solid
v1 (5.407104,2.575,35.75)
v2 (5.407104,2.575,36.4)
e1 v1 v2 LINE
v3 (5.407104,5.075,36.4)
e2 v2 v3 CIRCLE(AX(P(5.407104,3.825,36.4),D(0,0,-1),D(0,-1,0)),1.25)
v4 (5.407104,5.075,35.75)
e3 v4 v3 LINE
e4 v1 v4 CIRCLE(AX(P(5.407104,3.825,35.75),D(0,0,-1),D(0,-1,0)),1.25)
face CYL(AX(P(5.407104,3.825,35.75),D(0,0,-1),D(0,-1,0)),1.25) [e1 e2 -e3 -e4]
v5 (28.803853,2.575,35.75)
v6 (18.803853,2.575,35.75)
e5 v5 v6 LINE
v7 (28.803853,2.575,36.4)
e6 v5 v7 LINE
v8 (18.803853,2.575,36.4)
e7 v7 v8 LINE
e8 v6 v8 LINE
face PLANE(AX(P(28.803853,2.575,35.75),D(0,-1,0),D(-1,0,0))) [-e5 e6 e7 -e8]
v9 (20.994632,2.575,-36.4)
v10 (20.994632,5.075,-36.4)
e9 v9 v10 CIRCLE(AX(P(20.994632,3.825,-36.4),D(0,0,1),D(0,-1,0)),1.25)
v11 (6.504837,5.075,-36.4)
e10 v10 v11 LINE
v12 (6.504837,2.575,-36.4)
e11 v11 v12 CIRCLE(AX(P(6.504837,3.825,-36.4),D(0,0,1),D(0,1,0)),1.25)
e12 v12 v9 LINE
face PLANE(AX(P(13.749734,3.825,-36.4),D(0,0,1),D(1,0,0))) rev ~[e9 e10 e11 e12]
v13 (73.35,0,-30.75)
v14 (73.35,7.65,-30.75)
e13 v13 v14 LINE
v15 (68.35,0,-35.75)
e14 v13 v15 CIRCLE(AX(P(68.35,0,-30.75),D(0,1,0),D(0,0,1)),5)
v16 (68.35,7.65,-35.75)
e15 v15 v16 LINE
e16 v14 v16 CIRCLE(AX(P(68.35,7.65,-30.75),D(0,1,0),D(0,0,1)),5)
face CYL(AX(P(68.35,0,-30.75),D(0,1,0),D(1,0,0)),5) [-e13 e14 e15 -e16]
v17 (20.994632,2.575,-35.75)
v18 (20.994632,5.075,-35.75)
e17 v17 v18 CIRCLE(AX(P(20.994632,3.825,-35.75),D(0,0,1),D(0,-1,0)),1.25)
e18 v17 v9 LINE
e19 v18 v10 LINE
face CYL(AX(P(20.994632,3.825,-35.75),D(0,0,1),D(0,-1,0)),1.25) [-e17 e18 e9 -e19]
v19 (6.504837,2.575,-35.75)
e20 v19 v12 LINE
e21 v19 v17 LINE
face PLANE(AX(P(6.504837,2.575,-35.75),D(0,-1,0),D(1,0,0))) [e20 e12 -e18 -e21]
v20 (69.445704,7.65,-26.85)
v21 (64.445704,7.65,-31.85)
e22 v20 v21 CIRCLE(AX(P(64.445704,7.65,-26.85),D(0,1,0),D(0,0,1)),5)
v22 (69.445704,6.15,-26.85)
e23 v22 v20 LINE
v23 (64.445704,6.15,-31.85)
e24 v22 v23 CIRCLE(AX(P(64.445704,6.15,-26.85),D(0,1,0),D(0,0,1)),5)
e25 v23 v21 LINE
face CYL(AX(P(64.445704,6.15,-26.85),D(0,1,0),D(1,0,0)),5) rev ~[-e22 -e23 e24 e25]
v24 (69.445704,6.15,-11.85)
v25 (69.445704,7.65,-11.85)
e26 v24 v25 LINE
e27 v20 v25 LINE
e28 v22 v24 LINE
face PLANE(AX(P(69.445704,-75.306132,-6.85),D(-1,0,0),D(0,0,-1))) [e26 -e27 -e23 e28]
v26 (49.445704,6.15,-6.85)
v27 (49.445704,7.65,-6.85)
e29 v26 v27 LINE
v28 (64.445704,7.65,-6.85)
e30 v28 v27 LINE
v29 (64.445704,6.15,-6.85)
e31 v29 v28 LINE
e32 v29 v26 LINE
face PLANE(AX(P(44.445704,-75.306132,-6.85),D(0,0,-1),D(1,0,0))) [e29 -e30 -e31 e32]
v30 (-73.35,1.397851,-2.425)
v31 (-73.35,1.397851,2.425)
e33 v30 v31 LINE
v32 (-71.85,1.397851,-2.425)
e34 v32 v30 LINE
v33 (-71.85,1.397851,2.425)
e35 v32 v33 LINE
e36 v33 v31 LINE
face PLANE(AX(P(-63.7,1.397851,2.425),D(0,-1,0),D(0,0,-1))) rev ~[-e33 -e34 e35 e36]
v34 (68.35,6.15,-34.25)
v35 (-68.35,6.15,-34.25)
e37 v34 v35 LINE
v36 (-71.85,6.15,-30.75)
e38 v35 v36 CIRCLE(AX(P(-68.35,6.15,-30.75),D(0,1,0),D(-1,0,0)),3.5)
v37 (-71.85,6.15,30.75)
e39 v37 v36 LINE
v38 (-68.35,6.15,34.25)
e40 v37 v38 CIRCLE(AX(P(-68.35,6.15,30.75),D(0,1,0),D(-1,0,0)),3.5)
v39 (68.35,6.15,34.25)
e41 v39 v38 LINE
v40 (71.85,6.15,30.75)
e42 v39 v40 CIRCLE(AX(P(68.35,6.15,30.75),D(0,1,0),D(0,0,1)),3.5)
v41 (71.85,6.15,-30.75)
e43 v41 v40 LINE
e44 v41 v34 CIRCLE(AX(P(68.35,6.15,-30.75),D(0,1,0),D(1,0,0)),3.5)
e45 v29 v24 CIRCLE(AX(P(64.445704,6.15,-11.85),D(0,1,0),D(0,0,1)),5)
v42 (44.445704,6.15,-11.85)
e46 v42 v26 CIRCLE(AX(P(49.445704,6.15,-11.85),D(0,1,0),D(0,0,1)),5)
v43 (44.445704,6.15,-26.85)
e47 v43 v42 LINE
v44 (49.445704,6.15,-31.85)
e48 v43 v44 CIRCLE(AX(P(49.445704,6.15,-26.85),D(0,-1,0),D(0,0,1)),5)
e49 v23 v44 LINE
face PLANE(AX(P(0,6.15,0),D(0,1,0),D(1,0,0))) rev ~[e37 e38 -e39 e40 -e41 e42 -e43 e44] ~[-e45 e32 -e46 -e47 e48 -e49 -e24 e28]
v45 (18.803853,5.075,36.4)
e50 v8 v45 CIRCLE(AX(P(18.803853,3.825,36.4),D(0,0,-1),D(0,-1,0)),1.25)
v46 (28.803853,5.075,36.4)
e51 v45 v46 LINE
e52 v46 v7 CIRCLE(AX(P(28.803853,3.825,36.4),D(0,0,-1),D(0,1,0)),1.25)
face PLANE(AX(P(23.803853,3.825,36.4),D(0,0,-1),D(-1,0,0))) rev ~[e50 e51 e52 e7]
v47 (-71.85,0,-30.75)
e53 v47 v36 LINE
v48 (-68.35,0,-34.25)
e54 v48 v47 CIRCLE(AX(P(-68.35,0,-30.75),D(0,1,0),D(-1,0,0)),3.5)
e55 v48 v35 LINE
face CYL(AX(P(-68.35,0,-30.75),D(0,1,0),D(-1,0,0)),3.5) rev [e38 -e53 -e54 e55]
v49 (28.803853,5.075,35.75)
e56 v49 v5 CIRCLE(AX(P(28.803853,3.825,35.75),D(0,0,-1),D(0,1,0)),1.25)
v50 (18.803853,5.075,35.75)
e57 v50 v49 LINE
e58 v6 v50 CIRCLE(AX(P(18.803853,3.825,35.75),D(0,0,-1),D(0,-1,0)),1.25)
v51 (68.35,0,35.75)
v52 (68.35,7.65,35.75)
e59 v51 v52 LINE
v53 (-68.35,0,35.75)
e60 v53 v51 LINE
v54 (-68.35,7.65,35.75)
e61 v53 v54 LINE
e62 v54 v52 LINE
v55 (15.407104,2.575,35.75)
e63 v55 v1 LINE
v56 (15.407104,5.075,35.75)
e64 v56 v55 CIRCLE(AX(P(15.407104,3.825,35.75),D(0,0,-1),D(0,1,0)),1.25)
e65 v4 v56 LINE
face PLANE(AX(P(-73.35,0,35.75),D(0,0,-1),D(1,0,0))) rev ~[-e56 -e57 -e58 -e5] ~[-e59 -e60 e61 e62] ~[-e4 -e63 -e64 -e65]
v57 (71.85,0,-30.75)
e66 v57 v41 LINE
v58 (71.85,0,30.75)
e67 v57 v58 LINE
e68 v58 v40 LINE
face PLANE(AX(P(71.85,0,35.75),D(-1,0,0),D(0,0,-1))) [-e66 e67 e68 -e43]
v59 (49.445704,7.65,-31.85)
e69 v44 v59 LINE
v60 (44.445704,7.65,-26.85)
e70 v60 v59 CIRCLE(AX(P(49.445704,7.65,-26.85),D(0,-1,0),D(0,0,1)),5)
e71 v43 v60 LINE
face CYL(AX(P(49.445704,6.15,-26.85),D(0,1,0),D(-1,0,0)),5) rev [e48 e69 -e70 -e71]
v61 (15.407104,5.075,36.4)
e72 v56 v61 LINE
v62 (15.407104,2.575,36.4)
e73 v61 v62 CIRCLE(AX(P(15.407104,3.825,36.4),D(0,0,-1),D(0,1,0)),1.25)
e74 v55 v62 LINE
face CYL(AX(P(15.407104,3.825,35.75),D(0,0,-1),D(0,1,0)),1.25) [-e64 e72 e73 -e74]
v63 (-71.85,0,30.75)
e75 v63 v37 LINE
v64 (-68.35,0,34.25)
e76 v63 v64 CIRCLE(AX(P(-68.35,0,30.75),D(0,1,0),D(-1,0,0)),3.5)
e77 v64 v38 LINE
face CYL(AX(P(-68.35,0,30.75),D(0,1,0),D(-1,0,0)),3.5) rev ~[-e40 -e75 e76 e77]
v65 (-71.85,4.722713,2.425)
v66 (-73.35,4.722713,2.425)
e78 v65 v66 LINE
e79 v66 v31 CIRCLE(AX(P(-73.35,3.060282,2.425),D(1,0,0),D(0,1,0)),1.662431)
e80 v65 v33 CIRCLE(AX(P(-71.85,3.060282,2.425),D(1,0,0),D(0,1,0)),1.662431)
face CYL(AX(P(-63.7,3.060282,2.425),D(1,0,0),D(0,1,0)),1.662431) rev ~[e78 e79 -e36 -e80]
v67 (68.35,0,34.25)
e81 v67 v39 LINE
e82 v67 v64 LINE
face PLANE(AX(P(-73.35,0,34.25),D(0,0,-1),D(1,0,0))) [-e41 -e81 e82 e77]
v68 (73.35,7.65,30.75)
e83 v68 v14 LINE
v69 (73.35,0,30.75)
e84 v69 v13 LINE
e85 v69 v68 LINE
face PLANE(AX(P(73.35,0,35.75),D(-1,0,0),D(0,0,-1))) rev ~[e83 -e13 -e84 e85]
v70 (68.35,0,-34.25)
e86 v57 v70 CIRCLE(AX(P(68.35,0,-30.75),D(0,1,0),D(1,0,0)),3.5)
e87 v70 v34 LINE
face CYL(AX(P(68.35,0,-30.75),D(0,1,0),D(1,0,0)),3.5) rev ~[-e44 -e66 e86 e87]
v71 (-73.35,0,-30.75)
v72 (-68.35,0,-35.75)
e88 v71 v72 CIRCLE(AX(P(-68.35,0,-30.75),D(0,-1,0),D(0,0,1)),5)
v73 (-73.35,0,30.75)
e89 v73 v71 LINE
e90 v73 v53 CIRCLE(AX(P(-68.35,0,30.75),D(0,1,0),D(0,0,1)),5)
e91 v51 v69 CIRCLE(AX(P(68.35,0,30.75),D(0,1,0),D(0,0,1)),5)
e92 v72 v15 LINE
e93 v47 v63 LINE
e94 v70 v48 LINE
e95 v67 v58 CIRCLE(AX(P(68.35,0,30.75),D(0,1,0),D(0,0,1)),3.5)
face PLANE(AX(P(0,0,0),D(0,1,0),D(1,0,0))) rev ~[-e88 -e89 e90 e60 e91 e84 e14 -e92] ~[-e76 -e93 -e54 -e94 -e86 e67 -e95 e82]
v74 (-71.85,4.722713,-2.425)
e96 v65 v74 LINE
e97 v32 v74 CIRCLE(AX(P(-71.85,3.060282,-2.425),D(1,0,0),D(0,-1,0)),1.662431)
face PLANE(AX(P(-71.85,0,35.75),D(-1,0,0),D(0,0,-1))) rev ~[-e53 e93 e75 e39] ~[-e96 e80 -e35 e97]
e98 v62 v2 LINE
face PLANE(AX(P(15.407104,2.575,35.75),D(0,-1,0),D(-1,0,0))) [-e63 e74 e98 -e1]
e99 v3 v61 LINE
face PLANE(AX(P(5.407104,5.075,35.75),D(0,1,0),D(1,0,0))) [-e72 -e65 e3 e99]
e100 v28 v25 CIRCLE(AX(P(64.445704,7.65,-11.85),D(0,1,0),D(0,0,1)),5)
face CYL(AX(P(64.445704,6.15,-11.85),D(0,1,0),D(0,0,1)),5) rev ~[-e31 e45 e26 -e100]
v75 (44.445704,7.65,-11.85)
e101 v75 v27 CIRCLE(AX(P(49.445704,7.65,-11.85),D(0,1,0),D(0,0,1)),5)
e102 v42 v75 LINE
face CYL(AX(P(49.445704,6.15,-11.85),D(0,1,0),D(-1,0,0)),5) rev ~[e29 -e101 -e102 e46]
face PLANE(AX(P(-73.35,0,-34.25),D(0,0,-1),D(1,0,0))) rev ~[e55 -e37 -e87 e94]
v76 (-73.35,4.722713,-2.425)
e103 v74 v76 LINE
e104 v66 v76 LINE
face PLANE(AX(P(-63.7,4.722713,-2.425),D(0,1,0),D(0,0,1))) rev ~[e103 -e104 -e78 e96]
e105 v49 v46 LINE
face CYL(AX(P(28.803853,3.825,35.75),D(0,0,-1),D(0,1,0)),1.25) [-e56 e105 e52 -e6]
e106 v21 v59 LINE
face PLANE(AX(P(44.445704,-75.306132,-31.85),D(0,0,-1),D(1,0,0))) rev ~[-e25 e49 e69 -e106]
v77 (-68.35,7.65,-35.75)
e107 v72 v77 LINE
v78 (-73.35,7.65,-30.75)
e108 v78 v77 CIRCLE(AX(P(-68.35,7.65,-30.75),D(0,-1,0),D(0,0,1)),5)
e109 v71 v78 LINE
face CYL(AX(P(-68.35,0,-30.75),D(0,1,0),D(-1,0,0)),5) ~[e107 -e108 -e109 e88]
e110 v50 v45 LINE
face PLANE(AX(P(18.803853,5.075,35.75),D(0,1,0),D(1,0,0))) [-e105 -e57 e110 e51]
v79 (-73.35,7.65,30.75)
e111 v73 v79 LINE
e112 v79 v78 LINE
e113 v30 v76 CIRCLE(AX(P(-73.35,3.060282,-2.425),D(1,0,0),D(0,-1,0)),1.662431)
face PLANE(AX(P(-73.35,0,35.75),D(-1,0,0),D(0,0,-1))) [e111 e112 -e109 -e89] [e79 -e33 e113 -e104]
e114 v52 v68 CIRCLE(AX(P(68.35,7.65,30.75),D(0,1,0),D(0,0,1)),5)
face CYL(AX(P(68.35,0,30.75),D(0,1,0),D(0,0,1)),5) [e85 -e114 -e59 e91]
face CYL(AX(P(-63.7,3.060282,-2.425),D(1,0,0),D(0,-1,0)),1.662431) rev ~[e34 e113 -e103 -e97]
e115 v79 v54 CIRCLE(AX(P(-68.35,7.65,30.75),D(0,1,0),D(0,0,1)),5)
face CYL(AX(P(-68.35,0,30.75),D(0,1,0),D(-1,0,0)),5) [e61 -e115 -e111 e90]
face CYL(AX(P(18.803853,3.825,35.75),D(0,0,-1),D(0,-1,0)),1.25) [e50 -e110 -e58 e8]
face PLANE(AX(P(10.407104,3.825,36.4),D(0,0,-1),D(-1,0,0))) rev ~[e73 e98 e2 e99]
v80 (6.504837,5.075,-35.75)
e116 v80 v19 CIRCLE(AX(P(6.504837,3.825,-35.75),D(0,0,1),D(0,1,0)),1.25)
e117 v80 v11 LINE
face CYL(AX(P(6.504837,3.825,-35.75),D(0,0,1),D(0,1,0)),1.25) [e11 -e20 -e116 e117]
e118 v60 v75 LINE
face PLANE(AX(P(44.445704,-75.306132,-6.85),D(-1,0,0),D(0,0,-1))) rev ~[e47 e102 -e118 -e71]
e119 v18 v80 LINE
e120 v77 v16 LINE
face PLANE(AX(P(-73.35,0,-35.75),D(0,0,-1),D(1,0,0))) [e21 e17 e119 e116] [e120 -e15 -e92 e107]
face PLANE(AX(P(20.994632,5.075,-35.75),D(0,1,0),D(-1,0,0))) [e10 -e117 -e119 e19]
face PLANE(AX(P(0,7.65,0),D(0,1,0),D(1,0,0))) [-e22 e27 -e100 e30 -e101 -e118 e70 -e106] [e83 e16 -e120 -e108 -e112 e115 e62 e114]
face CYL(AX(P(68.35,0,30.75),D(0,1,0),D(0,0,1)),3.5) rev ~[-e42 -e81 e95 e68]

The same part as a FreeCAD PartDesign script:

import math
import FreeCAD as App
import Part
import Sketcher

V = App.Vector
Q = App.Units.Quantity


def edges_at(feature, points):
    """Names of the edges that pass closest to the given points."""
    edges = feature.Shape.Edges
    near = lambda p: min(range(len(edges)), key=lambda i: edges[i].distToShape(Part.Vertex(*p))[0])
    return sorted({f"Edge{near(p) + 1}" for p in points})


def faces_at(feature, points):
    """Names of the faces that lie closest to the given points."""
    faces = feature.Shape.Faces
    near = lambda p: min(range(len(faces)), key=lambda i: faces[i].distToShape(Part.Vertex(*p))[0])
    return sorted({f"Face{near(p) + 1}" for p in points})

doc = App.newDocument("Part")
body = doc.addObject("PartDesign::Body", "Body")

# Sketch on XZ plane
sketch1 = body.newObject("Sketcher::SketchObject", "Sketch")
sketch1.AttachmentSupport = (doc.getObject("XZ_Plane"), [""])
sketch1.MapMode = "FlatFace"
sketch1.addGeometry([
    Part.LineSegment(V(-73, -36, 0), V(-73, 36, 0)),
    Part.LineSegment(V(-73, 36, 0), V(73, 36, 0)),
    Part.LineSegment(V(73, 36, 0), V(73, -36, 0)),
    Part.LineSegment(V(73, -36, 0), V(-73, -36, 0)),
], False)
sketch1.addConstraint([
    Sketcher.Constraint("Coincident", 0, 2, 1, 1),
    Sketcher.Constraint("Coincident", 1, 2, 2, 1),
    Sketcher.Constraint("Coincident", 2, 2, 3, 1),
    Sketcher.Constraint("Coincident", 3, 2, 0, 1),
    Sketcher.Constraint("Vertical", 0),
    Sketcher.Constraint("Horizontal", 1),
    Sketcher.Constraint("Vertical", 2),
    Sketcher.Constraint("Horizontal", 3),
    Sketcher.Constraint("Symmetric", 0, 2, 2, 2, -1, 1),
    Sketcher.Constraint("DistanceX", 1, 1, 1, 2, Q("146.7 mm")),
    Sketcher.Constraint("DistanceY", 0, 1, 0, 2, Q("71.5 mm")),
])
pad1 = body.newObject("PartDesign::Pad", "Pad")
pad1.Profile = sketch1
pad1.Length = 7.65
pad1.Reversed = True
doc.recompute()

fillet = body.newObject("PartDesign::Fillet", "Fillet")
fillet.Base = (pad1, edges_at(pad1, [
    (73.35, 3.825, 35.75),
    (-73.35, 3.825, 35.75),
    (-73.35, 3.825, -35.75),
    (73.35, 3.825, -35.75),
]))
fillet.Radius = 5
doc.recompute()

thickness = body.newObject("PartDesign::Thickness", "Thickness")
thickness.Base = (fillet, faces_at(fillet, [(0, 0, 0)]))
thickness.Value = 1.5
thickness.Reversed = True
thickness.Join = "Intersection"

# Sketch on XZ plane
sketch2 = body.newObject("Sketcher::SketchObject", "Sketch001")
sketch2.AttachmentSupport = (doc.getObject("XZ_Plane"), [""])
sketch2.MapMode = "FlatFace"
sketch2.AttachmentOffset = App.Placement(V(0, 0, -7.65), App.Rotation())
sketch2.addGeometry([
    Part.LineSegment(V(44, -32, 0), V(44, -7, 0)),
    Part.LineSegment(V(44, -7, 0), V(69, -7, 0)),
    Part.LineSegment(V(69, -7, 0), V(69, -32, 0)),
    Part.LineSegment(V(69, -32, 0), V(44, -32, 0)),
], False)
sketch2.addConstraint([
    Sketcher.Constraint("Coincident", 0, 2, 1, 1),
    Sketcher.Constraint("Coincident", 1, 2, 2, 1),
    Sketcher.Constraint("Coincident", 2, 2, 3, 1),
    Sketcher.Constraint("Coincident", 3, 2, 0, 1),
    Sketcher.Constraint("Vertical", 0),
    Sketcher.Constraint("Horizontal", 1),
    Sketcher.Constraint("Vertical", 2),
    Sketcher.Constraint("Horizontal", 3),
    Sketcher.Constraint("Equal", 3, 0),
    Sketcher.Constraint("DistanceX", 1, 1, 1, 2, Q("25 mm")),
    Sketcher.Constraint("DistanceY", 0, 2, -1, 1, Q("6.85 mm")),
    Sketcher.Constraint("DistanceX", -1, 1, 0, 2, Q("44.445704 mm")),
])
pocket1 = body.newObject("PartDesign::Pocket", "Pocket")
pocket1.Profile = sketch2
pocket1.Type = "ThroughAll"
pocket1.Midplane = True
doc.recompute()

fillet2 = body.newObject("PartDesign::Fillet", "Fillet001")
fillet2.Base = (pocket1, edges_at(pocket1, [
    (69.446, 6.9, -31.85),
    (69.446, 6.9, -6.85),
    (44.446, 6.9, -6.85),
    (44.446, 6.9, -31.85),
]))
fillet2.Radius = 5

# Sketch on YZ plane
sketch3 = body.newObject("Sketcher::SketchObject", "Sketch002")
sketch3.AttachmentSupport = (doc.getObject("YZ_Plane"), [""])
sketch3.MapMode = "FlatFace"
sketch3.AttachmentOffset = App.Placement(V(0, 0, -73.35), App.Rotation())
sketch3.addGeometry([
    Part.LineSegment(V(4.7, 2.4, 0), V(4.7, -2.4, 0)),
    Part.ArcOfCircle(Part.Circle(V(3.1, -2.4, 0), V(0, 0, 1), 1.7), math.radians(180), math.radians(360)),
    Part.LineSegment(V(1.4, -2.4, 0), V(1.4, 2.4, 0)),
    Part.ArcOfCircle(Part.Circle(V(3.1, 2.4, 0), V(0, 0, 1), 1.7), math.radians(0), math.radians(180)),
], False)
sketch3.addConstraint([
    Sketcher.Constraint("Tangent", 0, 2, 1, 2),
    Sketcher.Constraint("Tangent", 1, 1, 2, 1),
    Sketcher.Constraint("Tangent", 2, 2, 3, 2),
    Sketcher.Constraint("Tangent", 3, 1, 0, 1),
    Sketcher.Constraint("Vertical", 0),
    Sketcher.Constraint("Vertical", 2),
    Sketcher.Constraint("DistanceY", 0, 2, 0, 1, Q("4.85 mm")),
    Sketcher.Constraint("Radius", 1, Q("1.662431 mm")),
    Sketcher.Constraint("DistanceY", 1, 3, -1, 1, Q("2.425 mm")),
    Sketcher.Constraint("DistanceX", -1, 1, 1, 3, Q("3.060282 mm")),
])
pocket2 = body.newObject("PartDesign::Pocket", "Pocket001")
pocket2.Profile = sketch3
pocket2.Type = "TwoLengths"
pocket2.Length = 152.186888
pocket2.Length2 = 9.65

# Sketch on XY plane
sketch4 = body.newObject("Sketcher::SketchObject", "Sketch003")
sketch4.AttachmentSupport = (doc.getObject("XY_Plane"), [""])
sketch4.MapMode = "FlatFace"
sketch4.AttachmentOffset = App.Placement(V(0, 0, 35.75), App.Rotation())
sketch4.addGeometry([
    Part.LineSegment(V(15.4, 5.1, 0), V(5.4, 5.1, 0)),  # 0
    Part.ArcOfCircle(Part.Circle(V(5.4, 3.8, 0), V(0, 0, 1), 1.2), math.radians(90), math.radians(270)),  # 1
    Part.LineSegment(V(5.4, 2.6, 0), V(15.4, 2.6, 0)),  # 2
    Part.ArcOfCircle(Part.Circle(V(15.4, 3.8, 0), V(0, 0, 1), 1.2), math.radians(-90), math.radians(90)),  # 3
    Part.LineSegment(V(28.8, 5.1, 0), V(18.8, 5.1, 0)),  # 4
    Part.ArcOfCircle(Part.Circle(V(18.8, 3.8, 0), V(0, 0, 1), 1.2), math.radians(90), math.radians(270)),  # 5
    Part.LineSegment(V(18.8, 2.6, 0), V(28.8, 2.6, 0)),  # 6
    Part.ArcOfCircle(Part.Circle(V(28.8, 3.8, 0), V(0, 0, 1), 1.2), math.radians(-90), math.radians(90)),  # 7
], False)
sketch4.addConstraint([
    Sketcher.Constraint("Tangent", 0, 2, 1, 1),
    Sketcher.Constraint("Tangent", 1, 2, 2, 1),
    Sketcher.Constraint("Tangent", 2, 2, 3, 1),
    Sketcher.Constraint("Tangent", 3, 2, 0, 1),
    Sketcher.Constraint("Tangent", 4, 2, 5, 1),
    Sketcher.Constraint("Tangent", 5, 2, 6, 1),
    Sketcher.Constraint("Tangent", 6, 2, 7, 1),
    Sketcher.Constraint("Tangent", 7, 2, 4, 1),
    Sketcher.Constraint("Horizontal", 0),
    Sketcher.Constraint("Horizontal", 2),
    Sketcher.Constraint("Horizontal", 4),
    Sketcher.Constraint("Horizontal", 6),
    Sketcher.Constraint("Equal", 3, 5),
    Sketcher.Constraint("Horizontal", 3, 3, 5, 3),
    Sketcher.Constraint("Equal", 2, 4),
    Sketcher.Constraint("DistanceX", 0, 2, 0, 1, Q("10 mm")),
    Sketcher.Constraint("Radius", 1, Q("1.25 mm")),
    Sketcher.Constraint("DistanceY", -1, 1, 1, 3, Q("3.825 mm")),
    Sketcher.Constraint("DistanceX", 3, 3, 5, 3, Q("3.39675 mm")),
    Sketcher.Constraint("DistanceX", -1, 1, 1, 3, Q("5.407104 mm")),
])
pad2 = body.newObject("PartDesign::Pad", "Pad001")
pad2.Profile = sketch4
pad2.Length = 0.65

# Sketch on XY plane
sketch5 = body.newObject("Sketcher::SketchObject", "Sketch004")
sketch5.AttachmentSupport = (doc.getObject("XY_Plane"), [""])
sketch5.MapMode = "FlatFace"
sketch5.AttachmentOffset = App.Placement(V(0, 0, -35.75), App.Rotation())
sketch5.addGeometry([
    Part.LineSegment(V(6.5, 5.1, 0), V(21, 5.1, 0)),
    Part.ArcOfCircle(Part.Circle(V(21, 3.8, 0), V(0, 0, 1), 1.2), math.radians(-90), math.radians(90)),
    Part.LineSegment(V(21, 2.6, 0), V(6.5, 2.6, 0)),
    Part.ArcOfCircle(Part.Circle(V(6.5, 3.8, 0), V(0, 0, 1), 1.2), math.radians(90), math.radians(270)),
], False)
sketch5.addConstraint([
    Sketcher.Constraint("Tangent", 0, 2, 1, 2),
    Sketcher.Constraint("Tangent", 1, 1, 2, 1),
    Sketcher.Constraint("Tangent", 2, 2, 3, 2),
    Sketcher.Constraint("Tangent", 3, 1, 0, 1),
    Sketcher.Constraint("Horizontal", 0),
    Sketcher.Constraint("Horizontal", 2),
    Sketcher.Constraint("Radius", 1, Q("1.25 mm")),
    Sketcher.Constraint("DistanceY", -1, 1, 1, 3, Q("3.825 mm")),
    Sketcher.Constraint("DistanceX", 0, 1, 0, 2, Q("14.489795 mm")),
    Sketcher.Constraint("DistanceX", -1, 1, 1, 3, Q("20.994632 mm")),
])
pad3 = body.newObject("PartDesign::Pad", "Pad002")
pad3.Profile = sketch5
pad3.Length = 0.65
pad3.Reversed = True

doc.recompute()
